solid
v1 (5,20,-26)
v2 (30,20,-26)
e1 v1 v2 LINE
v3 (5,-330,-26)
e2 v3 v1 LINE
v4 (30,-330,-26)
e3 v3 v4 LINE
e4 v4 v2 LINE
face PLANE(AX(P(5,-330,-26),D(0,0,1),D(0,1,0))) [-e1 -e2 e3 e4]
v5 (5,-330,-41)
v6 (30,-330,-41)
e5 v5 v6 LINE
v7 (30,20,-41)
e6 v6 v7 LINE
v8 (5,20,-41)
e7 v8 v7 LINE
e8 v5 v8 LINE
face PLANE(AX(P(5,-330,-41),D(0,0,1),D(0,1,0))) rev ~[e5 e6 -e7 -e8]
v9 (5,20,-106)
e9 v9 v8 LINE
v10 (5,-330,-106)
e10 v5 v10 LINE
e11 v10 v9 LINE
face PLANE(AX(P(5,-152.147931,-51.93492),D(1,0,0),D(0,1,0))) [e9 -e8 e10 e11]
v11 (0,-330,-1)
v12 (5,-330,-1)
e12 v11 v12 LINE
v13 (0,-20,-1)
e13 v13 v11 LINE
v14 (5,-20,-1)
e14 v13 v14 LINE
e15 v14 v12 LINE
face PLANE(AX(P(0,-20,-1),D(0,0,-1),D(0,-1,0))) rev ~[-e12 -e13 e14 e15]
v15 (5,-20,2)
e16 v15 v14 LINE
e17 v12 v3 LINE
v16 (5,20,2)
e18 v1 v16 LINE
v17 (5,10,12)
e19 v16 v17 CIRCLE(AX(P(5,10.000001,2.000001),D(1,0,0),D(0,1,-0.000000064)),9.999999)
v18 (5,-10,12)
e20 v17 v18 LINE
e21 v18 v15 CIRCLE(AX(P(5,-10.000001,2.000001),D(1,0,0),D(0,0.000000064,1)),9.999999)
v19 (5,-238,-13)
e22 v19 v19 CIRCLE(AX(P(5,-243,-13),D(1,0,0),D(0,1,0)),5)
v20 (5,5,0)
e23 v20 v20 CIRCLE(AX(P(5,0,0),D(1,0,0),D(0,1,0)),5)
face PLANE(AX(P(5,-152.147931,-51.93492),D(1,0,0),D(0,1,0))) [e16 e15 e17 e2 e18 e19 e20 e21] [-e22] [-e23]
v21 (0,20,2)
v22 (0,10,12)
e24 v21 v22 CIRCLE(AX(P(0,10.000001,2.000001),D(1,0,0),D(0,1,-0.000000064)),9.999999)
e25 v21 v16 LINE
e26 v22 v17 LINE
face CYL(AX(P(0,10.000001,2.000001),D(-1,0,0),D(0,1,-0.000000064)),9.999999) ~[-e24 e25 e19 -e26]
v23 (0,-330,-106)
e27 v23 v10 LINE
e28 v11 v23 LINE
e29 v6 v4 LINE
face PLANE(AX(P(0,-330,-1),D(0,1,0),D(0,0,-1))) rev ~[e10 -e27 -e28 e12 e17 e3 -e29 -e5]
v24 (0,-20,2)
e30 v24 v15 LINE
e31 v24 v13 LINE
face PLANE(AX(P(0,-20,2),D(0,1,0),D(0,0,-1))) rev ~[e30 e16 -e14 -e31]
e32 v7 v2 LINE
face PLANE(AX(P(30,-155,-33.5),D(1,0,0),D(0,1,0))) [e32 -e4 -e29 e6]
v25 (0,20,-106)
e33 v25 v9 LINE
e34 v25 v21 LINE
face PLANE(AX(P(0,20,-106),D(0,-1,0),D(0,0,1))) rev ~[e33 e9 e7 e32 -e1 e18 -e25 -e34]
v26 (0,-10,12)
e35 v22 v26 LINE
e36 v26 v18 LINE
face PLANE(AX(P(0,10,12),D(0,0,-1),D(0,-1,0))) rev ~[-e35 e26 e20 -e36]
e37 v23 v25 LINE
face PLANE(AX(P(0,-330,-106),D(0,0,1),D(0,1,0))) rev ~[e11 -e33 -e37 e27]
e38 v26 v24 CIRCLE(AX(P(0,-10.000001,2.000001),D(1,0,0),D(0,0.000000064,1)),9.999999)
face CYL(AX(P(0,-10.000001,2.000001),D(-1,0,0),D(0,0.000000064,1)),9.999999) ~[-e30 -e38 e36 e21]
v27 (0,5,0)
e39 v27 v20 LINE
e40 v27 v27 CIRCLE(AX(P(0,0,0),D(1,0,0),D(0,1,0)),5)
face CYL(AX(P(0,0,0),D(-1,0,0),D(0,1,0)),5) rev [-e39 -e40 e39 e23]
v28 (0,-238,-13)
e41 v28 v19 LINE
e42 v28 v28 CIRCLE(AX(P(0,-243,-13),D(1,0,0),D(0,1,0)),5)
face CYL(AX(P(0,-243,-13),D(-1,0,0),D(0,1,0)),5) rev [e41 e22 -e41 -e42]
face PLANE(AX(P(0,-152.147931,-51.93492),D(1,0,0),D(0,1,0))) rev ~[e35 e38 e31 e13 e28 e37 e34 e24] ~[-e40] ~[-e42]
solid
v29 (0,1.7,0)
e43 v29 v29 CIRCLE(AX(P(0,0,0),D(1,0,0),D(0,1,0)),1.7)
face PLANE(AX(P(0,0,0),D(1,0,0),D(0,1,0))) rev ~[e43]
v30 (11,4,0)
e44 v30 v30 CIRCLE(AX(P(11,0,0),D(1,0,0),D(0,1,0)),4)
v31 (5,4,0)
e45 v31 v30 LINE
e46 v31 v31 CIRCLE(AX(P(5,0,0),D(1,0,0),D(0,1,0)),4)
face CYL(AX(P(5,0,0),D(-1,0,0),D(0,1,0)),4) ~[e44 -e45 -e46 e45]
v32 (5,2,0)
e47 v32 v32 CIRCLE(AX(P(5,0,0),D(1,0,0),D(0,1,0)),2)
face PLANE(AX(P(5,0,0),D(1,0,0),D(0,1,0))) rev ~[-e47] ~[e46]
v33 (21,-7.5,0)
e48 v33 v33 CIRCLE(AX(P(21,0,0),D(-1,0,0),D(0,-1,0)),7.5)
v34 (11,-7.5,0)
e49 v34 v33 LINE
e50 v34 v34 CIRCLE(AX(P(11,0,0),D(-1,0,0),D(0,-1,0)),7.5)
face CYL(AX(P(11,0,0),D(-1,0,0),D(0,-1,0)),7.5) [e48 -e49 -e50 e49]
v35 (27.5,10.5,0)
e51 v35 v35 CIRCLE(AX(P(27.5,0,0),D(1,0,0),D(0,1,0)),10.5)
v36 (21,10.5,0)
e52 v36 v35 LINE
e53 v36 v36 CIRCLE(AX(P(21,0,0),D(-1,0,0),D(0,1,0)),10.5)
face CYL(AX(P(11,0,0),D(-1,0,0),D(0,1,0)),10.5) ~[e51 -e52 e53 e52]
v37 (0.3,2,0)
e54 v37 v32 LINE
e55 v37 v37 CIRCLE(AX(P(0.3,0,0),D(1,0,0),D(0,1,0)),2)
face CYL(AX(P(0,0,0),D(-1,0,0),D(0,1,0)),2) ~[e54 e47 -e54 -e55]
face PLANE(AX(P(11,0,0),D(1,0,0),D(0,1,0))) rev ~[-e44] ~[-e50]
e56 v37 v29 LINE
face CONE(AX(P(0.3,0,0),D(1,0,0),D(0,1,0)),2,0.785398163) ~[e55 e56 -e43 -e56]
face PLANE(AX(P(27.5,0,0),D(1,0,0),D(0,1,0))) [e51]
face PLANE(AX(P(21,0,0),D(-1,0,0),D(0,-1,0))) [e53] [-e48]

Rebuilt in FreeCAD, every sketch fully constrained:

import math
import FreeCAD as App
import Part
import Sketcher
Q = App.Units.Quantity


def edges_at(feature, points):
    """Names of the edges that pass closest to the given points."""
    edges = feature.Shape.Edges
    near = lambda p: min(range(len(edges)), key=lambda i: edges[i].distToShape(Part.Vertex(*p))[0])
    return sorted({f"Edge{near(p) + 1}" for p in points})

doc = App.newDocument("Part")
body = doc.addObject("PartDesign::Body", "Body")

# Sketch on YZ plane
sketch1 = doc.addObject("Sketcher::SketchObject", "Sketch")
body.addObject(sketch1)
sketch1.AttachmentSupport = (doc.YZ_Plane, [""])
sketch1.MapMode = "FlatFace"
sketch1.addGeometry([
    Part.LineSegment(App.Vector(-20, -1, 0), App.Vector(-330, -1, 0)),  # 0
    Part.LineSegment(App.Vector(-330, -1, 0), App.Vector(-330, -106, 0)),  # 1
    Part.LineSegment(App.Vector(-330, -106, 0), App.Vector(20, -106, 0)),  # 2
    Part.LineSegment(App.Vector(20, -106, 0), App.Vector(20, 2, 0)),  # 3
    Part.ArcOfCircle(Part.Circle(App.Vector(10, 2, 0), App.Vector(0, 0, 1), 10), math.radians(0), math.radians(90)),  # 4
    Part.LineSegment(App.Vector(10, 12, 0), App.Vector(-10, 12, 0)),  # 5
    Part.ArcOfCircle(Part.Circle(App.Vector(-10, 2, 0), App.Vector(0, 0, 1), 10), math.radians(90), math.radians(180)),  # 6
    Part.LineSegment(App.Vector(-20, 2, 0), App.Vector(-20, -1, 0)),  # 7
    Part.Circle(App.Vector(-243, -13, 0), App.Vector(0, 0, 1), 5),  # 8
    Part.Circle(App.Vector(0, 0, 0), App.Vector(0, 0, 1), 5),  # 9
], False)
sketch1.addConstraint([
    Sketcher.Constraint("Coincident", 0, 2, 1, 1),
    Sketcher.Constraint("Coincident", 1, 2, 2, 1),
    Sketcher.Constraint("Coincident", 2, 2, 3, 1),
    Sketcher.Constraint("Tangent", 3, 2, 4, 1),
    Sketcher.Constraint("Tangent", 4, 2, 5, 1),
    Sketcher.Constraint("Tangent", 5, 2, 6, 1),
    Sketcher.Constraint("Tangent", 6, 2, 7, 1),
    Sketcher.Constraint("Coincident", 7, 2, 0, 1),
    Sketcher.Constraint("Horizontal", 0),
    Sketcher.Constraint("Vertical", 1),
    Sketcher.Constraint("Horizontal", 2),
    Sketcher.Constraint("Vertical", 3),
    Sketcher.Constraint("Horizontal", 5),
    Sketcher.Constraint("Vertical", 7),
    Sketcher.Constraint("Coincident", 9, 3, -1, 1),
    Sketcher.Constraint("Equal", 4, 6),
    Sketcher.Constraint("Equal", 8, 9),
    Sketcher.Constraint("Diameter", 8, Q("10 mm")),
    Sketcher.Constraint("Radius", 4, Q("9.999999 mm")),
    Sketcher.Constraint("DistanceX", 0, 2, 0, 1, Q("310 mm")),
    Sketcher.Constraint("DistanceX", 2, 1, 2, 2, Q("350 mm")),
    Sketcher.Constraint("DistanceY", 1, 2, 1, 1, Q("105 mm")),
    Sketcher.Constraint("DistanceY", 3, 1, 3, 2, Q("108 mm")),
    Sketcher.Constraint("DistanceX", -1, 1, 4, 3, Q("10.000001 mm")),
    Sketcher.Constraint("DistanceY", -1, 1, 4, 3, Q("2.000001 mm")),
    Sketcher.Constraint("DistanceX", 8, 3, -1, 1, Q("243 mm")),
    Sketcher.Constraint("DistanceY", 8, 3, -1, 1, Q("13 mm")),
])
pad1 = doc.addObject("PartDesign::Pad", "Pad")
body.addObject(pad1)
pad1.Profile = sketch1
pad1.Length = 5

# Sketch on YZ plane
sketch2 = doc.addObject("Sketcher::SketchObject", "Sketch001")
body.addObject(sketch2)
sketch2.AttachmentSupport = (doc.YZ_Plane, [""])
sketch2.MapMode = "FlatFace"
sketch2.AttachmentOffset = App.Placement(App.Vector(0, 0, 5), App.Rotation())
sketch2.addGeometry([
    Part.LineSegment(App.Vector(-330, -26, 0), App.Vector(-330, -41, 0)),
    Part.LineSegment(App.Vector(-330, -41, 0), App.Vector(20, -41, 0)),
    Part.LineSegment(App.Vector(20, -41, 0), App.Vector(20, -26, 0)),
    Part.LineSegment(App.Vector(20, -26, 0), App.Vector(-330, -26, 0)),
], False)
sketch2.addConstraint([
    Sketcher.Constraint("Coincident", 0, 2, 1, 1),
    Sketcher.Constraint("Coincident", 1, 2, 2, 1),
    Sketcher.Constraint("Coincident", 2, 2, 3, 1),
    Sketcher.Constraint("Coincident", 3, 2, 0, 1),
    Sketcher.Constraint("Vertical", 0),
    Sketcher.Constraint("Horizontal", 1),
    Sketcher.Constraint("Vertical", 2),
    Sketcher.Constraint("Horizontal", 3),
    Sketcher.Constraint("DistanceX", 1, 1, 1, 2, Q("350 mm")),
    Sketcher.Constraint("DistanceY", 0, 2, 0, 1, Q("15 mm")),
    Sketcher.Constraint("DistanceX", 0, 2, -1, 1, Q("330 mm")),
    Sketcher.Constraint("DistanceY", 0, 2, -1, 1, Q("41 mm")),
])
pad2 = doc.addObject("PartDesign::Pad", "Pad001")
body.addObject(pad2)
pad2.Profile = sketch2
pad2.Length = 25
body2 = doc.addObject("PartDesign::Body", "Body001")

# Sketch on YZ plane
sketch3 = doc.addObject("Sketcher::SketchObject", "Sketch002")
body2.addObject(sketch3)
sketch3.AttachmentSupport = (doc.getObject("YZ_Plane001"), [""])
sketch3.MapMode = "FlatFace"
sketch3.addGeometry(Part.Circle(App.Vector(0, 0, 0), App.Vector(0, 0, 1), 2), False)
sketch3.addConstraint([
    Sketcher.Constraint("Coincident", 0, 3, -1, 1),
    Sketcher.Constraint("Diameter", 0, Q("4 mm")),
])
pad3 = doc.addObject("PartDesign::Pad", "Pad002")
body2.addObject(pad3)
pad3.Profile = sketch3
pad3.Length = 5

# Sketch on YZ plane
sketch4 = doc.addObject("Sketcher::SketchObject", "Sketch003")
body2.addObject(sketch4)
sketch4.AttachmentSupport = (doc.getObject("YZ_Plane001"), [""])
sketch4.MapMode = "FlatFace"
sketch4.AttachmentOffset = App.Placement(App.Vector(0, 0, 5), App.Rotation())
sketch4.addGeometry(Part.Circle(App.Vector(0, 0, 0), App.Vector(0, 0, 1), 4), False)
sketch4.addConstraint([
    Sketcher.Constraint("Coincident", 0, 3, -1, 1),
    Sketcher.Constraint("Diameter", 0, Q("8 mm")),
])
pad4 = doc.addObject("PartDesign::Pad", "Pad003")
body2.addObject(pad4)
pad4.Profile = sketch4
pad4.Length = 6

# Sketch on YZ plane
sketch5 = doc.addObject("Sketcher::SketchObject", "Sketch004")
body2.addObject(sketch5)
sketch5.AttachmentSupport = (doc.getObject("YZ_Plane001"), [""])
sketch5.MapMode = "FlatFace"
sketch5.AttachmentOffset = App.Placement(App.Vector(0, 0, 11), App.Rotation())
sketch5.addGeometry(Part.Circle(App.Vector(0, 0, 0), App.Vector(0, 0, 1), 10), False)
sketch5.addConstraint([
    Sketcher.Constraint("Coincident", 0, 3, -1, 1),
    Sketcher.Constraint("Diameter", 0, Q("21 mm")),
])
pad5 = doc.addObject("PartDesign::Pad", "Pad004")
body2.addObject(pad5)
pad5.Profile = sketch5
pad5.Length = 16.5

# Sketch on YZ plane
sketch6 = doc.addObject("Sketcher::SketchObject", "Sketch005")
body2.addObject(sketch6)
sketch6.AttachmentSupport = (doc.getObject("YZ_Plane001"), [""])
sketch6.MapMode = "FlatFace"
sketch6.AttachmentOffset = App.Placement(App.Vector(0, 0, 11), App.Rotation())
sketch6.addGeometry([
    Part.Circle(App.Vector(0, 0, 0), App.Vector(0, 0, 1), 12),
    Part.Circle(App.Vector(0, 0, 0), App.Vector(0, 0, 1), 8),
], False)
sketch6.addConstraint([
    Sketcher.Constraint("Coincident", 0, 3, -1, 1),
    Sketcher.Constraint("Coincident", 1, 3, -1, 1),
    Sketcher.Constraint("Diameter", 1, Q("15 mm")),
    Sketcher.Constraint("Diameter", 0, Q("24.263872 mm")),
])
pocket1 = doc.addObject("PartDesign::Pocket", "Pocket")
body2.addObject(pocket1)
pocket1.Profile = sketch6
pocket1.Length = 10
pocket1.Reversed = True
doc.recompute()

chamfer = doc.addObject("PartDesign::Chamfer", "Chamfer")
body2.addObject(chamfer)
chamfer.Base = (pocket1, edges_at(pocket1, [(0, -2, 0)]))
chamfer.Size = 0.3

doc.recompute()
